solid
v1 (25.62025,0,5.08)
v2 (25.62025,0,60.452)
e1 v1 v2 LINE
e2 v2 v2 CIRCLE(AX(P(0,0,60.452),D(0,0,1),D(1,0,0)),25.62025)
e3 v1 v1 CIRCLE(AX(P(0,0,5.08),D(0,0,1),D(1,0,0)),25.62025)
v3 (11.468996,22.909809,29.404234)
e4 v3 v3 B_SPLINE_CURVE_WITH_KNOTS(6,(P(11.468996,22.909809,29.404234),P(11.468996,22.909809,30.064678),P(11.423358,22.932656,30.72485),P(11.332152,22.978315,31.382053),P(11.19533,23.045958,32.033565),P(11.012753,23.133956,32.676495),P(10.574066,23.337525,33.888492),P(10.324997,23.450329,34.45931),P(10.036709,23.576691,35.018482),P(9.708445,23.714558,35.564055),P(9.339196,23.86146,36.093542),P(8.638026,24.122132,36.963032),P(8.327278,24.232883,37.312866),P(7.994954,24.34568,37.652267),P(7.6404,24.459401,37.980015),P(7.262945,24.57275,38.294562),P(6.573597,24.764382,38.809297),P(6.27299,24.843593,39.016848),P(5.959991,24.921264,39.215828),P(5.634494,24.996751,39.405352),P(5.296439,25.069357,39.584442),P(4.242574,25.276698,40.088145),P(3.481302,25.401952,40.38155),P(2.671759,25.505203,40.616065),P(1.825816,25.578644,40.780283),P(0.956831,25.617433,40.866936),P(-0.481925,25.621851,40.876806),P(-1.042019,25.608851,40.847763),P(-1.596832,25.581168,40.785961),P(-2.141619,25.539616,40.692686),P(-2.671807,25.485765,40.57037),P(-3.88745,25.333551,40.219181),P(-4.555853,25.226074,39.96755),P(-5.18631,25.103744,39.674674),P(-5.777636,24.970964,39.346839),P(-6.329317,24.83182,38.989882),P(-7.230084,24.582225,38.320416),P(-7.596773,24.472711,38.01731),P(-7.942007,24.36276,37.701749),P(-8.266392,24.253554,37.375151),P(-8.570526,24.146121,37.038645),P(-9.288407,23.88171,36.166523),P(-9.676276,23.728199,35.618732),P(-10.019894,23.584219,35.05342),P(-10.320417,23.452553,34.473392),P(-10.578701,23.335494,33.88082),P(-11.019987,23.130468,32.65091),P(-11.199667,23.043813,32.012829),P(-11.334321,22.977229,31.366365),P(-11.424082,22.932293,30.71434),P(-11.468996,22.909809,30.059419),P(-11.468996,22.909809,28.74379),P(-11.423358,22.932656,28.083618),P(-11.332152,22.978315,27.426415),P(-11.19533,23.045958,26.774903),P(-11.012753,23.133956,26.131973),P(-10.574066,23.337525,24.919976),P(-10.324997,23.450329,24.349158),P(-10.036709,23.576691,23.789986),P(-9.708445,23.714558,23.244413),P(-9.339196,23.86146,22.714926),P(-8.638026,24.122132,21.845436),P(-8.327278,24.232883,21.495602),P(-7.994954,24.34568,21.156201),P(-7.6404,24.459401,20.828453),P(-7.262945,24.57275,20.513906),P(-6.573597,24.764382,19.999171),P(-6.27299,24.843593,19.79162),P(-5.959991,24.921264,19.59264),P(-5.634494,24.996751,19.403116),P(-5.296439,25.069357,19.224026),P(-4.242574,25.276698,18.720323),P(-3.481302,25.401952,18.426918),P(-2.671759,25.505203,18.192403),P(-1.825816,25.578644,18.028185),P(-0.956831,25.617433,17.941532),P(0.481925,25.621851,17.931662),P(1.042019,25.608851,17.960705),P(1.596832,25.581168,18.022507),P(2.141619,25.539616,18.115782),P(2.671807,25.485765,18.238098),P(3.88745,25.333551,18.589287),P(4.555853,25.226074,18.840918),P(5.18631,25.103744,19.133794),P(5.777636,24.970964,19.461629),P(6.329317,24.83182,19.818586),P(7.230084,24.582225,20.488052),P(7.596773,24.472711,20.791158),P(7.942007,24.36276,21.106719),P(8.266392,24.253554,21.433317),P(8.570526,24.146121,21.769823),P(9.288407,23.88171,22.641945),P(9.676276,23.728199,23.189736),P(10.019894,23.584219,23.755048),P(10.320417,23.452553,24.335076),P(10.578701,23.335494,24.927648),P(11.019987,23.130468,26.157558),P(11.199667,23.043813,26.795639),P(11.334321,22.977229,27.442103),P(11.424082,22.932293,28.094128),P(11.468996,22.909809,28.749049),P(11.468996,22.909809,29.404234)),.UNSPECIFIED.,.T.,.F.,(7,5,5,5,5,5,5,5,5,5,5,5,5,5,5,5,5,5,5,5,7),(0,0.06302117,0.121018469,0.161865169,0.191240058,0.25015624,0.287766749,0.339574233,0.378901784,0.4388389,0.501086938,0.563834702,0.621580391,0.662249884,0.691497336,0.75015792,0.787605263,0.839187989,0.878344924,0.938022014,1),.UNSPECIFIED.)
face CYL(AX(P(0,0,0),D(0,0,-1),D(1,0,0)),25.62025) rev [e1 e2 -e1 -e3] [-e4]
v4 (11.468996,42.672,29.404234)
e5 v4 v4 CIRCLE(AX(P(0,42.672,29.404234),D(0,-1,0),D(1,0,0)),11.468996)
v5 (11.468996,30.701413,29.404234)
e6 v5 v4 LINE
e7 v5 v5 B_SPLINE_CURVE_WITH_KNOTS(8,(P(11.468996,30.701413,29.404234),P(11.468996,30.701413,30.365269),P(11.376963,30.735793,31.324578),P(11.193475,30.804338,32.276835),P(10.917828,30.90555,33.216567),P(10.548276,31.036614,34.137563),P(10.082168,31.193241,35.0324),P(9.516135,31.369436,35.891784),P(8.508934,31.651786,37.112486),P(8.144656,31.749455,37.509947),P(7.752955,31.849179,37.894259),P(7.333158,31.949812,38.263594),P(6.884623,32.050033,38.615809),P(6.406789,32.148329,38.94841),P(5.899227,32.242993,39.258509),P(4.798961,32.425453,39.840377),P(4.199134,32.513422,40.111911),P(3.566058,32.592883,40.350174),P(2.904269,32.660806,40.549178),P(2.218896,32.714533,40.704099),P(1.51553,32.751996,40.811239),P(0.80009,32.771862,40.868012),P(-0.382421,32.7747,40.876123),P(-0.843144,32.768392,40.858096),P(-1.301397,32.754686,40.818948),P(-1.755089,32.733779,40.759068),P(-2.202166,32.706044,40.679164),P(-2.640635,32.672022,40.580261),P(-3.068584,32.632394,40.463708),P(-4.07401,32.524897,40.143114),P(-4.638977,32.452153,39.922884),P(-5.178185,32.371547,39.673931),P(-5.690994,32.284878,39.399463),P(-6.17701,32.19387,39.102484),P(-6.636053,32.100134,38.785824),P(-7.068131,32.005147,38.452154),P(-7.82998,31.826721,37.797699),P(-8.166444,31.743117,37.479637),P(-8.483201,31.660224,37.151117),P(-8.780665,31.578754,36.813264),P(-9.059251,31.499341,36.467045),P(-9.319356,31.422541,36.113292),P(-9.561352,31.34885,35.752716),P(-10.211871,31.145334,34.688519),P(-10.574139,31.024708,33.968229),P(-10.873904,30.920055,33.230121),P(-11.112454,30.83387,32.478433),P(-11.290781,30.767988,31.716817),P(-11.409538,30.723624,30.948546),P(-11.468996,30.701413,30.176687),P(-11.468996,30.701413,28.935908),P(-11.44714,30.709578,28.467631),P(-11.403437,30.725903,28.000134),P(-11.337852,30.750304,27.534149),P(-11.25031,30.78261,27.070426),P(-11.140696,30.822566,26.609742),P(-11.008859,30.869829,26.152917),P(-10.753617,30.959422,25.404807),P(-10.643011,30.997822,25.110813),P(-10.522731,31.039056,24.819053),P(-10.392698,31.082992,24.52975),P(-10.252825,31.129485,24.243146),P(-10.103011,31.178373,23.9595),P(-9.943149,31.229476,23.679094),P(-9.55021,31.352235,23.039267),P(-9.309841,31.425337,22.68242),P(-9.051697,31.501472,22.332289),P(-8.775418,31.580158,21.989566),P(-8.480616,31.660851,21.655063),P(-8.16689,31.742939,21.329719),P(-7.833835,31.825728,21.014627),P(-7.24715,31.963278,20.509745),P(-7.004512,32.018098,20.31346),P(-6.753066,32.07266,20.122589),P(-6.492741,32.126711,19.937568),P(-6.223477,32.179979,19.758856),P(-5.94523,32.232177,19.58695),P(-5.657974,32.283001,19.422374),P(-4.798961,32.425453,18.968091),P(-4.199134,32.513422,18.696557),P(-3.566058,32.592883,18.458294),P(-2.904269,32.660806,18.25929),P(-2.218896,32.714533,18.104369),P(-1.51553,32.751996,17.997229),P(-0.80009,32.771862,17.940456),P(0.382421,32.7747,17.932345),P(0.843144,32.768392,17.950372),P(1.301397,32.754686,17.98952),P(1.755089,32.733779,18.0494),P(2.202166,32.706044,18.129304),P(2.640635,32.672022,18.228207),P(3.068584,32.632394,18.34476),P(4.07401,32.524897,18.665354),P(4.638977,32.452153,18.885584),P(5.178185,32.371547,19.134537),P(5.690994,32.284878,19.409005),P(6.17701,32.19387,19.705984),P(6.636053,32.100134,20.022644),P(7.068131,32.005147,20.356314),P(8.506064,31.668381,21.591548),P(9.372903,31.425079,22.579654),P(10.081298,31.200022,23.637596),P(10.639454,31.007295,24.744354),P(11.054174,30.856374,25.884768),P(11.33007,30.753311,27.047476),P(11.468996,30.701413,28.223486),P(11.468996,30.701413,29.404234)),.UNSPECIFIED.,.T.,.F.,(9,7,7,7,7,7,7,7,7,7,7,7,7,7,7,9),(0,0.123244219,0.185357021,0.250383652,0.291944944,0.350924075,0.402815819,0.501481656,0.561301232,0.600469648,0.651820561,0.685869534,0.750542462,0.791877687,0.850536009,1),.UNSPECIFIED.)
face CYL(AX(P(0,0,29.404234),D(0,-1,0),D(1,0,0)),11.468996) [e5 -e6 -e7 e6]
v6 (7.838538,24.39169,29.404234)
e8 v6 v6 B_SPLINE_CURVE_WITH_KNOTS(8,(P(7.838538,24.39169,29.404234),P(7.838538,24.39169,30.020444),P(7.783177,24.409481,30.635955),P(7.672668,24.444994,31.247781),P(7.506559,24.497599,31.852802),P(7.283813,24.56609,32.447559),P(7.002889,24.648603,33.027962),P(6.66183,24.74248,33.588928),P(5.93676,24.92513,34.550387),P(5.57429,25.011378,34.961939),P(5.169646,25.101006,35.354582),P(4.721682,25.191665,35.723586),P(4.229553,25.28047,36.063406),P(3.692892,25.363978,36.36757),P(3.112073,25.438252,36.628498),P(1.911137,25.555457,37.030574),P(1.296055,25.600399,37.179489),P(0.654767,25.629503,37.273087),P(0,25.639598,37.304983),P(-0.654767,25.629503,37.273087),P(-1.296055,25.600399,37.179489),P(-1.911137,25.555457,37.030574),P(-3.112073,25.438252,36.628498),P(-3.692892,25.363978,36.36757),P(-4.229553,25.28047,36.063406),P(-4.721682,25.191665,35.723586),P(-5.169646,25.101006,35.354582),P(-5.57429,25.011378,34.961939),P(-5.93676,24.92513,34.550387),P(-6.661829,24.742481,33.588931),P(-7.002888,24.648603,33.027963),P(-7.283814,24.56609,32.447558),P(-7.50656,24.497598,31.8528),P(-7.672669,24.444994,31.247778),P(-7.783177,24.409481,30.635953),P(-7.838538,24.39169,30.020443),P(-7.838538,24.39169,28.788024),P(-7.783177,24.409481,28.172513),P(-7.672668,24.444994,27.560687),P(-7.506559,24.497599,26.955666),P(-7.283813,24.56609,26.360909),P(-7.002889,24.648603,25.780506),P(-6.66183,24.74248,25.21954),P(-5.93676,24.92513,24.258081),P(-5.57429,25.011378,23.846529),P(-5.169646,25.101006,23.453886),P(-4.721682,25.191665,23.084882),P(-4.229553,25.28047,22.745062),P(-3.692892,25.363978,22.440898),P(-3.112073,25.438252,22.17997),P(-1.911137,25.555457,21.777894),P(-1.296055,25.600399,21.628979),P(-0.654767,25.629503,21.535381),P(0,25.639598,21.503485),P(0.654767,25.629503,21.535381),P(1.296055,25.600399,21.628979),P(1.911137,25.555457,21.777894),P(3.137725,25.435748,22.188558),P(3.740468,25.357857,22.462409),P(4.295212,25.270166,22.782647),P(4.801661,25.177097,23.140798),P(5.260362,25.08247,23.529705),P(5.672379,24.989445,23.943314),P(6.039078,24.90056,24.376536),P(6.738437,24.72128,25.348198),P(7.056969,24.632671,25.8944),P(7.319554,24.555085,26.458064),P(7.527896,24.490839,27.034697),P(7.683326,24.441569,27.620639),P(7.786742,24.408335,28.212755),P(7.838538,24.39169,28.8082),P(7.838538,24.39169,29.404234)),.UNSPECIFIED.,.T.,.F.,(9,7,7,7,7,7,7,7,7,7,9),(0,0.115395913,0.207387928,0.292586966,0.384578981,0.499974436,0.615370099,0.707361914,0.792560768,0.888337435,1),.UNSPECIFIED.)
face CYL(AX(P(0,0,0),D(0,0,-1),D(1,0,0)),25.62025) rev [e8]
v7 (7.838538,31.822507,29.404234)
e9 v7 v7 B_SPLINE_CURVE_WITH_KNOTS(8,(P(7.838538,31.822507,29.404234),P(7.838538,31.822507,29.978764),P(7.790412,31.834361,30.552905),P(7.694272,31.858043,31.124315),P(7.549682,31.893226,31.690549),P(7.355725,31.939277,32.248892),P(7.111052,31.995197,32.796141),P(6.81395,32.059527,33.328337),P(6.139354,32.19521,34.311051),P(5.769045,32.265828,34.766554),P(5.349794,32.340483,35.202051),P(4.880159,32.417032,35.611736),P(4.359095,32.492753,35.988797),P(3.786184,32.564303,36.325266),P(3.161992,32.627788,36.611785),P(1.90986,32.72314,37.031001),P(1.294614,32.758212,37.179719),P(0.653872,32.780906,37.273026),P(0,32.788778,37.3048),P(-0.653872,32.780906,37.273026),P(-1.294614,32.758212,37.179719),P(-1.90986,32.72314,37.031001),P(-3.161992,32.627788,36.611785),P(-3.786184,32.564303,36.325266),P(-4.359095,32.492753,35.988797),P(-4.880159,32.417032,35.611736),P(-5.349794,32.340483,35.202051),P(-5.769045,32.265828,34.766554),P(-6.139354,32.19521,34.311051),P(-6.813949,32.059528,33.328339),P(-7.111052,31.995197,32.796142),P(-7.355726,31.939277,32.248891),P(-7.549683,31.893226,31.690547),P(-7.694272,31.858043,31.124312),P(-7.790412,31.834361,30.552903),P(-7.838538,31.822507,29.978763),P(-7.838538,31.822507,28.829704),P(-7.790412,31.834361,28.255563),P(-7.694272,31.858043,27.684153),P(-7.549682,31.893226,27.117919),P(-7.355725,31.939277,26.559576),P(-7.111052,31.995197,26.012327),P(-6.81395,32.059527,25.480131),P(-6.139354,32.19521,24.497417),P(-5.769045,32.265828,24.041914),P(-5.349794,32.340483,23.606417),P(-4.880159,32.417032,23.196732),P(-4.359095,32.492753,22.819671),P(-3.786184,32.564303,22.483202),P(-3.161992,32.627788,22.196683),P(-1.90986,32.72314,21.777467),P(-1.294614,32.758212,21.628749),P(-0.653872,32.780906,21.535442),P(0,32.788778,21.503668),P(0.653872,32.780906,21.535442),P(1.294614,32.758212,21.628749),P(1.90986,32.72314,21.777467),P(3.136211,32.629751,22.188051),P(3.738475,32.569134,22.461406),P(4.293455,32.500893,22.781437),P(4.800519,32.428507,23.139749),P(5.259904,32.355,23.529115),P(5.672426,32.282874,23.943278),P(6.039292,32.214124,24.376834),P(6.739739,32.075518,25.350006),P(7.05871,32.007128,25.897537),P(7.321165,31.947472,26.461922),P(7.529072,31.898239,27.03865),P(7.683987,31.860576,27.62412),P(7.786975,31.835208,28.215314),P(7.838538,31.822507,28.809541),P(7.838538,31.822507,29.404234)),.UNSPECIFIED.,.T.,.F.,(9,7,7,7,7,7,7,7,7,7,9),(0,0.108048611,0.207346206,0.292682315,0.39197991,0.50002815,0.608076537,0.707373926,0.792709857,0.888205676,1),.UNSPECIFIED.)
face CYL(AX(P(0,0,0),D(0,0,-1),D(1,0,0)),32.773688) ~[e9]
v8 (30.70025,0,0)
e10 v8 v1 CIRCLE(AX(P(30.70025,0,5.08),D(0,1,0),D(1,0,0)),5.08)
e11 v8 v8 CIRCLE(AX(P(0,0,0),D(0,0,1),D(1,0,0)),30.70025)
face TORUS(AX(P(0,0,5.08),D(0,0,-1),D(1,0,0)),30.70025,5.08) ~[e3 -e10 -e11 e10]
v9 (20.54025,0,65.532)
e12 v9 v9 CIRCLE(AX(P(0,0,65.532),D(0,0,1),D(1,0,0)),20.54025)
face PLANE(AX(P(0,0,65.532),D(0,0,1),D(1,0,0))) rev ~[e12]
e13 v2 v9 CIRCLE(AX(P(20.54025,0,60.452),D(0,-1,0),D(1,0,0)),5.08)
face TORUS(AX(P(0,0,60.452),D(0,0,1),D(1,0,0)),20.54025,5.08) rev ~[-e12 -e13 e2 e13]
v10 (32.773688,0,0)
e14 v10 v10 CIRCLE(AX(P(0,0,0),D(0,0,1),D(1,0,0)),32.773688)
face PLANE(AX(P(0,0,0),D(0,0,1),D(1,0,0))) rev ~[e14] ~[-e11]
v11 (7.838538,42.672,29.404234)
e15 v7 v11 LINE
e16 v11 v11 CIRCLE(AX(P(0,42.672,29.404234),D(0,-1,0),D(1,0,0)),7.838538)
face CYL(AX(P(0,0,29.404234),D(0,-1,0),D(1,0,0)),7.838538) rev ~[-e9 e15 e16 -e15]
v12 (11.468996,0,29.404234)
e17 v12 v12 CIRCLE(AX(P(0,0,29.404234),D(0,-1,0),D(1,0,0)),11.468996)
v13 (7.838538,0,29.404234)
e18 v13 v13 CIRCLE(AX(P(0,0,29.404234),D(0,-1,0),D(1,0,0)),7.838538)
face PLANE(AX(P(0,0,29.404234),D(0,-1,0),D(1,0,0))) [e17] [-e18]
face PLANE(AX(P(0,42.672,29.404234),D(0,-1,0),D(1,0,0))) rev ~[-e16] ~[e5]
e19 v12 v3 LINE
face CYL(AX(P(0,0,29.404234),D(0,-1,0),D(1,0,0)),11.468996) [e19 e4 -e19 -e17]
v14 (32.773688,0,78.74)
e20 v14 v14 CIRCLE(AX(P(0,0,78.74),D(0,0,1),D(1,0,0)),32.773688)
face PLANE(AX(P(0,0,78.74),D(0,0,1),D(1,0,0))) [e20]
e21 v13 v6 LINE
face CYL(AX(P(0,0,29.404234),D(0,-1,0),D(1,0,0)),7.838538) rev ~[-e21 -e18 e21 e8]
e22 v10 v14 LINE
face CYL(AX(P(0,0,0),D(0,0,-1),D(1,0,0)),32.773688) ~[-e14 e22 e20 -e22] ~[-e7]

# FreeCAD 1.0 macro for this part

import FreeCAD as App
import Part
import Sketcher

V = App.Vector
Q = App.Units.Quantity


def edges_at(feature, points):
    """Names of the edges that pass closest to the given points."""
    edges = feature.Shape.Edges
    near = lambda p: min(range(len(edges)), key=lambda i: edges[i].distToShape(Part.Vertex(*p))[0])
    return sorted({f"Edge{near(p) + 1}" for p in points})

doc = App.newDocument("Part")
body = doc.addObject("PartDesign::Body", "Body")

# Sketch on XY plane
sketch1 = body.newObject("Sketcher::SketchObject", "Sketch")
sketch1.AttachmentSupport = (doc.getObject("XY_Plane"), [""])
sketch1.MapMode = "FlatFace"
sketch1.addGeometry(Part.Circle(V(0, 0, 0), V(0, 0, 1), 33), False)
sketch1.addConstraint([
    Sketcher.Constraint("Coincident", 0, 3, -1, 1),
    Sketcher.Constraint("Diameter", 0, Q("65.547376 mm")),
])
pad1 = body.newObject("PartDesign::Pad", "Pad")
pad1.Profile = sketch1
pad1.Length = Q("3.1 in")

# Sketch on XY plane
sketch2 = body.newObject("Sketcher::SketchObject", "Sketch001")
sketch2.AttachmentSupport = (doc.getObject("XY_Plane"), [""])
sketch2.MapMode = "FlatFace"
sketch2.addGeometry(Part.Circle(V(0, 0, 0), V(0, 0, 1), 26), False)
sketch2.addConstraint([
    Sketcher.Constraint("Coincident", 0, 3, -1, 1),
    Sketcher.Constraint("Diameter", 0, Q("51.2405 mm")),
])
pocket1 = body.newObject("PartDesign::Pocket", "Pocket")
pocket1.Profile = sketch2
pocket1.Length = Q("2.58 in")
pocket1.Reversed = True
doc.recompute()

fillet = body.newObject("PartDesign::Fillet", "Fillet")
fillet.Base = (pocket1, edges_at(pocket1, [(-25.62, 0, 0), (-25.62, 0, 65.532)]))
fillet.Radius = Q("0.2 in")

# Sketch on XZ plane
sketch3 = body.newObject("Sketcher::SketchObject", "Sketch002")
sketch3.AttachmentSupport = (doc.getObject("XZ_Plane"), [""])
sketch3.MapMode = "FlatFace"
sketch3.addGeometry([
    Part.Circle(V(0, 29, 0), V(0, 0, 1), 11),
    Part.Circle(V(0, 29, 0), V(0, 0, 1), 8),
], False)
sketch3.addConstraint([
    Sketcher.Constraint("Coincident", 1, 3, 0, 3),
    Sketcher.Constraint("PointOnObject", 0, 3, -2),
    Sketcher.Constraint("Diameter", 0, Q("22.937992 mm")),
    Sketcher.Constraint("Diameter", 1, Q("15.677076 mm")),
    Sketcher.Constraint("DistanceY", -1, 1, 0, 3, Q("29.404234 mm")),
])
pad2 = body.newObject("PartDesign::Pad", "Pad001")
pad2.Profile = sketch3
pad2.Length = Q("1.68 in")
pad2.Reversed = True

doc.recompute()
